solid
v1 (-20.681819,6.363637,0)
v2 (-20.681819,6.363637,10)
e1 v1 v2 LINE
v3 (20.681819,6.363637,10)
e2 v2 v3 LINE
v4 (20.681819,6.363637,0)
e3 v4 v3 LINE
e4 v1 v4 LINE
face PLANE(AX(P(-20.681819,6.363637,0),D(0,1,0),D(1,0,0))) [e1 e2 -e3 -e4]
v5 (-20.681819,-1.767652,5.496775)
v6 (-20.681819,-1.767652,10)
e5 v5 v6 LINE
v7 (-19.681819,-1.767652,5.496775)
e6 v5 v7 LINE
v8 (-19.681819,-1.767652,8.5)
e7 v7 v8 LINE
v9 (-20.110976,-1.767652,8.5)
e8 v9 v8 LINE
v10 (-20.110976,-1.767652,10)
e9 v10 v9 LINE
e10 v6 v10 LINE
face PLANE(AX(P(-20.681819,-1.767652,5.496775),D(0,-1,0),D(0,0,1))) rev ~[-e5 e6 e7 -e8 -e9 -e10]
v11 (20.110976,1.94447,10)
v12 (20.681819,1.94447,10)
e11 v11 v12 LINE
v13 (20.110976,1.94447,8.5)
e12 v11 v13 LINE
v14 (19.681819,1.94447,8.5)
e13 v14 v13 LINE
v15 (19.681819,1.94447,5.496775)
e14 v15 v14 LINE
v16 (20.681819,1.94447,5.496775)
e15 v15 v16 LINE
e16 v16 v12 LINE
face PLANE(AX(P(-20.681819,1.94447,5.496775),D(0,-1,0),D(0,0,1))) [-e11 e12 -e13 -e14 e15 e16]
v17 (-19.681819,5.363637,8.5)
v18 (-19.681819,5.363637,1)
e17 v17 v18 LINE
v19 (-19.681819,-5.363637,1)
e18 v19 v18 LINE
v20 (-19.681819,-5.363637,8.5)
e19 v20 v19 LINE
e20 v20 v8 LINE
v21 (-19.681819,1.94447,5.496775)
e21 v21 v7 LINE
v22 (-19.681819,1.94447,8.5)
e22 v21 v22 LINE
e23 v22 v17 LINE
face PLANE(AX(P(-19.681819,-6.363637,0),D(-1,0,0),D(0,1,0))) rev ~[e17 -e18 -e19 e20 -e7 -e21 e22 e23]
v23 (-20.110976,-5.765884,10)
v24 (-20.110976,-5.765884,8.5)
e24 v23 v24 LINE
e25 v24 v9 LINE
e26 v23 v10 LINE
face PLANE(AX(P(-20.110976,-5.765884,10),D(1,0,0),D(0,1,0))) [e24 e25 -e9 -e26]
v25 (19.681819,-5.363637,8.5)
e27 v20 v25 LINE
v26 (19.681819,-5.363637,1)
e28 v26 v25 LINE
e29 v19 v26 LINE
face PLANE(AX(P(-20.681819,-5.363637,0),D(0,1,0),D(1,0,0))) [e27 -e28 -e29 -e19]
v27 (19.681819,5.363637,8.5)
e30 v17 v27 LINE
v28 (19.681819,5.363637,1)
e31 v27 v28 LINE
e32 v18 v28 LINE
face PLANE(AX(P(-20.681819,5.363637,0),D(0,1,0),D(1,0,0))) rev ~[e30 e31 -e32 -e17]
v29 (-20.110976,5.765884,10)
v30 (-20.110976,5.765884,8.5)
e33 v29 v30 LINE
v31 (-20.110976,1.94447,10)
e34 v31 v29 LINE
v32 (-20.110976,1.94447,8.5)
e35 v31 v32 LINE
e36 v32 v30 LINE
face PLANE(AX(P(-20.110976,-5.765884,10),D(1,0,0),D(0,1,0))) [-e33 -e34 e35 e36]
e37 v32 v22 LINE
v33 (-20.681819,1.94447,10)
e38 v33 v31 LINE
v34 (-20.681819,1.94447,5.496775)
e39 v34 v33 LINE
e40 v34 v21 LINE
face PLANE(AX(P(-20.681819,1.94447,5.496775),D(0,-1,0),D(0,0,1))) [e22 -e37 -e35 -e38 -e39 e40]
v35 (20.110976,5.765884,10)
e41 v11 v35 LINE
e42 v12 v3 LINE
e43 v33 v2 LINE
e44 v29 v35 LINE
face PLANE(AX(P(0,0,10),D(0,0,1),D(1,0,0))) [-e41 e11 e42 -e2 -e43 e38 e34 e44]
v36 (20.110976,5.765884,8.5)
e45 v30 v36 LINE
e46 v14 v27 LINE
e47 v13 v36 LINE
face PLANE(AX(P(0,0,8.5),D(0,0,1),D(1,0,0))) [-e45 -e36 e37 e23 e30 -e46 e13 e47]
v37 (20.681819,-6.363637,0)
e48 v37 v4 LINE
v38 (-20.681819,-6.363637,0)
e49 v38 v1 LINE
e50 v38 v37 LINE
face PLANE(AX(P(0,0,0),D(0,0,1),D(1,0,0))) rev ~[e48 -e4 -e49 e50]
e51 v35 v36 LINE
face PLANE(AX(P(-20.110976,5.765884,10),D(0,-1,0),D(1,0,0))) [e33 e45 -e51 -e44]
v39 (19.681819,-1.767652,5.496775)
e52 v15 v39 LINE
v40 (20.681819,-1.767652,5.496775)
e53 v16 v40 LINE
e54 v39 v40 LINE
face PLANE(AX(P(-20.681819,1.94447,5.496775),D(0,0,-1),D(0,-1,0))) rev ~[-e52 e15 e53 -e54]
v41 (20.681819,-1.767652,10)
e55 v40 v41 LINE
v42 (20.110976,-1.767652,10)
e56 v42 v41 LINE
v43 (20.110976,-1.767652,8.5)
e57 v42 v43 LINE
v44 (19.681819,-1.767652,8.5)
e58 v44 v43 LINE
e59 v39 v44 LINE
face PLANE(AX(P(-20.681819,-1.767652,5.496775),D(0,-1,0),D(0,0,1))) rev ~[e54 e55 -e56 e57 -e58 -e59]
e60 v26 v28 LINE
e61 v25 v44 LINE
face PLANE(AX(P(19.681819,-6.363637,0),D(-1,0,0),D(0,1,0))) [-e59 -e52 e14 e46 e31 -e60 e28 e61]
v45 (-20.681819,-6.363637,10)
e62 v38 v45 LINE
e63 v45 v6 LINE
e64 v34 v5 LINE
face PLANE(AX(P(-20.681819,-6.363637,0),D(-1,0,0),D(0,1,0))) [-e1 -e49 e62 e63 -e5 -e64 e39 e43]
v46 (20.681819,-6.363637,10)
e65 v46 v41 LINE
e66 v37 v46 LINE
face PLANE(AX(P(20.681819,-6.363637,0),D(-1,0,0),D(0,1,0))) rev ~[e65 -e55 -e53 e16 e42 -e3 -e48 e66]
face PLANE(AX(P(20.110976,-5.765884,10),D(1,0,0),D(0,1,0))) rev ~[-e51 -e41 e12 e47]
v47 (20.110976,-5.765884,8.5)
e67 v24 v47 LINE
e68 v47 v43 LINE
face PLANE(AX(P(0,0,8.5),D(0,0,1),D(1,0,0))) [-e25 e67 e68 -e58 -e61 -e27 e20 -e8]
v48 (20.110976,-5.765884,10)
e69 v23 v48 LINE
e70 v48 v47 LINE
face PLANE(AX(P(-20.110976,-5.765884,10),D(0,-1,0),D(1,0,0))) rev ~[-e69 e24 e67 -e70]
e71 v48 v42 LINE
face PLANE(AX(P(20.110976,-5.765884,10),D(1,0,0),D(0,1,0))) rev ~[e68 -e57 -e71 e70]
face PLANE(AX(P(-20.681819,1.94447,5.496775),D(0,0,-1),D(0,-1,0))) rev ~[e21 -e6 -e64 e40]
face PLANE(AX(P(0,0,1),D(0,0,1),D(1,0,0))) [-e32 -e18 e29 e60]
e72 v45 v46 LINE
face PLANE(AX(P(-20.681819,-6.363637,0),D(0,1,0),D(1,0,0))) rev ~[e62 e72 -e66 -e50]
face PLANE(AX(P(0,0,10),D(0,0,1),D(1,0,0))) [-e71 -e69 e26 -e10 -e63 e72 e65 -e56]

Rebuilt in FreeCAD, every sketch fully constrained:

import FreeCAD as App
import Part
import Sketcher
from FreeCAD import Vector


def faces_at(feature, points):
    """Names of the faces that lie closest to the given points."""
    faces = feature.Shape.Faces
    near = lambda p: min(range(len(faces)), key=lambda i: faces[i].distToShape(Part.Vertex(*p))[0])
    return sorted({f"Face{near(p) + 1}" for p in points})


def add_polygon(sketch, points):
    """Adds a closed chain of lines whose ends are joined by coincident constraints."""
    first, n = sketch.GeometryCount, len(points)
    for a, b in zip(points, points[1:] + points[:1]):
        sketch.addGeometry(Part.LineSegment(App.Vector(*a, 0), App.Vector(*b, 0)), False)
    for i in range(n):
        sketch.addConstraint(Sketcher.Constraint("Coincident", first + i, 2, first + (i + 1) % n, 1))

doc = App.newDocument("Part")
body = doc.addObject("PartDesign::Body", "Body")

sketch1 = body.newObject("Sketcher::SketchObject", "Sketch")
sketch1.AttachmentSupport = (doc.getObject("XY_Plane"), [""])
sketch1.MapMode = "FlatFace"
add_polygon(sketch1, [(-21, 6), (-21, -6), (21, -6), (21, 6)])
sketch1.addConstraint(Sketcher.Constraint("Vertical", 0))
sketch1.addConstraint(Sketcher.Constraint("Horizontal", 1))
sketch1.addConstraint(Sketcher.Constraint("Vertical", 2))
sketch1.addConstraint(Sketcher.Constraint("Horizontal", 3))
sketch1.addConstraint(Sketcher.Constraint("Symmetric", 0, 2, 2, 2, -1, 1))
sketch1.addConstraint(Sketcher.Constraint("DistanceX", 1, 1, 1, 2, 41.363638))
sketch1.addConstraint(Sketcher.Constraint("DistanceY", 0, 2, 0, 1, 12.727274))
pad1 = body.newObject("PartDesign::Pad", "Pad")
pad1.Profile = sketch1
pad1.Length = 10
doc.recompute()

thickness = body.newObject("PartDesign::Thickness", "Thickness")
thickness.Base = (pad1, faces_at(pad1, [(0, 0, 10)]))
thickness.Value = 1
thickness.Reversed = True
thickness.Join = "Arc"

sketch2 = body.newObject("Sketcher::SketchObject", "Sketch001")
sketch2.AttachmentSupport = (doc.getObject("XY_Plane"), [""])
sketch2.MapMode = "FlatFace"
sketch2.AttachmentOffset = App.Placement(Vector(0, 0, 10), App.Rotation())
add_polygon(sketch2, [(-20, 6), (-20, -6), (20, -6), (20, 6)])
sketch2.addConstraint(Sketcher.Constraint("Vertical", 0))
sketch2.addConstraint(Sketcher.Constraint("Horizontal", 1))
sketch2.addConstraint(Sketcher.Constraint("Vertical", 2))
sketch2.addConstraint(Sketcher.Constraint("Horizontal", 3))
sketch2.addConstraint(Sketcher.Constraint("Symmetric", 0, 2, 2, 2, -1, 1))
sketch2.addConstraint(Sketcher.Constraint("DistanceX", 1, 1, 1, 2, 40.221952))
sketch2.addConstraint(Sketcher.Constraint("DistanceY", 0, 2, 0, 1, 11.531767))
pocket1 = body.newObject("PartDesign::Pocket", "Pocket")
pocket1.Profile = sketch2
pocket1.Length = 1.5

sketch3 = body.newObject("Sketcher::SketchObject", "Sketch002")
sketch3.AttachmentSupport = (doc.getObject("YZ_Plane"), [""])
sketch3.MapMode = "FlatFace"
sketch3.AttachmentOffset = App.Placement(Vector(0, 0, -20.681819), App.Rotation())
add_polygon(sketch3, [(1.9, 10), (1.9, 5.5), (-1.8, 5.5), (-1.8, 10)])
sketch3.addConstraint(Sketcher.Constraint("Vertical", 0))
sketch3.addConstraint(Sketcher.Constraint("Horizontal", 1))
sketch3.addConstraint(Sketcher.Constraint("Vertical", 2))
sketch3.addConstraint(Sketcher.Constraint("Horizontal", 3))
sketch3.addConstraint(Sketcher.Constraint("DistanceY", -1, 1, 2, 2, 10.0))
sketch3.addConstraint(Sketcher.Constraint("DistanceX", 1, 2, 1, 1, 3.712122))
sketch3.addConstraint(Sketcher.Constraint("DistanceY", 0, 2, 0, 1, 4.503225))
sketch3.addConstraint(Sketcher.Constraint("DistanceX", -1, 1, 0, 2, 1.94447))
pocket2 = body.newObject("PartDesign::Pocket", "Pocket001")
pocket2.Profile = sketch3
pocket2.Length = 60
pocket2.Reversed = True

doc.recompute()
